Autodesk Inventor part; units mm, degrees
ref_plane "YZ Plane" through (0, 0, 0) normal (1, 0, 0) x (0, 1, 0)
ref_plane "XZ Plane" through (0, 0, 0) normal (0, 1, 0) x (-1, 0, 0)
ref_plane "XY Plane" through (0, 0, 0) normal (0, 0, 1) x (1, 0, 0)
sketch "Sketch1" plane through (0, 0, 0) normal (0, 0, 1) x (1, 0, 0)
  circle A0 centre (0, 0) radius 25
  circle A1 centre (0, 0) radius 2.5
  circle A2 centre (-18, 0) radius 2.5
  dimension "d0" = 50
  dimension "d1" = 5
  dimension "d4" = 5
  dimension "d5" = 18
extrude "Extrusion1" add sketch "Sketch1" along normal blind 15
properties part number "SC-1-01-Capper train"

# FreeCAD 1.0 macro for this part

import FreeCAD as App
import Part
import Sketcher
Q = App.Units.Quantity

doc = App.newDocument("Part")
params = doc.addObject("Spreadsheet::Sheet", "Params")
for row, (alias, value) in enumerate([
    ("sketch1_diameter", "50 mm"),
    ("sketch1_diameter2", "5 mm"),
    ("pad1_length", "15 mm"),
], start=1):
    params.set(f"A{row}", alias)
    params.set(f"B{row}", "=" + value)
    params.setAlias(f"B{row}", alias)

body = doc.addObject("PartDesign::Body", "Body")

# Sketch on XY plane
sketch1 = body.newObject("Sketcher::SketchObject", "Sketch")
sketch1.AttachmentSupport = (doc.getObject("XY_Plane"), [""])
sketch1.MapMode = "FlatFace"
sketch1.addGeometry([
    Part.Circle(App.Vector(0, 0, 0), App.Vector(0, 0, 1), 25),
    Part.Circle(App.Vector(-18, 0, 0), App.Vector(0, 0, 1), 2.5),
    Part.Circle(App.Vector(0, 0, 0), App.Vector(0, 0, 1), 2.5),
], False)
sketch1.addConstraint([
    Sketcher.Constraint("Coincident", 0, 3, -1, 1),
    Sketcher.Constraint("Coincident", 2, 3, -1, 1),
    Sketcher.Constraint("Equal", 1, 2),
    Sketcher.Constraint("PointOnObject", 1, 3, -1),
    Sketcher.Constraint("Diameter", 0, Q("50 mm")),
    Sketcher.Constraint("Diameter", 1, Q("5 mm")),
    Sketcher.Constraint("DistanceX", 1, 3, -1, 1, Q("18 mm")),
])
sketch1.setExpression("Constraints[4]", "Params.sketch1_diameter")
sketch1.setExpression("Constraints[5]", "Params.sketch1_diameter2")
pad1 = body.newObject("PartDesign::Pad", "Pad")
pad1.Profile = sketch1
pad1.setExpression("Length", "Params.pad1_length")

doc.recompute()
